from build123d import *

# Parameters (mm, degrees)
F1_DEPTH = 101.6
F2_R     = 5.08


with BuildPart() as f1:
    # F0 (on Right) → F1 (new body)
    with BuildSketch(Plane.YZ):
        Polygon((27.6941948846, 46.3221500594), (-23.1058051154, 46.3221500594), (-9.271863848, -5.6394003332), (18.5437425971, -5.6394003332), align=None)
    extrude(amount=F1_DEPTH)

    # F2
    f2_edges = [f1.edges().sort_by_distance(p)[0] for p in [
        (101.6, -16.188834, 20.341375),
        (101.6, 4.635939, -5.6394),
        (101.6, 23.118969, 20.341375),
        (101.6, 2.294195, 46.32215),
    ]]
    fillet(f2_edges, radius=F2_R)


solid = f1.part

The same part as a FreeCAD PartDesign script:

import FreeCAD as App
import Part
import Sketcher
from FreeCAD import Vector
Q = App.Units.Quantity


def edges_at(feature, points):
    """Names of the edges that pass closest to the given points."""
    edges = feature.Shape.Edges
    near = lambda p: min(range(len(edges)), key=lambda i: edges[i].distToShape(Part.Vertex(*p))[0])
    return sorted({f"Edge{near(p) + 1}" for p in points})

doc = App.newDocument("Part")
params = doc.addObject("Spreadsheet::Sheet", "Params")
for row, (alias, value) in enumerate([
    ("sketch1_width", "2 in"),
    ("pad1_length", "4 in"),
    ("fillet_radius", "0.2 in"),
], start=1):
    params.set(f"A{row}", alias)
    params.set(f"B{row}", "=" + value)
    params.setAlias(f"B{row}", alias)

body = doc.addObject("PartDesign::Body", "Body")

sketch1 = body.newObject("Sketcher::SketchObject", "Sketch")
sketch1.AttachmentSupport = (doc.getObject("YZ_Plane"), [""])
sketch1.MapMode = "FlatFace"
sketch1.addGeometry(Part.LineSegment(Vector(28, 46, 0), Vector(-23, 46, 0)), False)
sketch1.addGeometry(Part.LineSegment(Vector(-23, 46, 0), Vector(-9, -6, 0)), False)
sketch1.addGeometry(Part.LineSegment(Vector(-9, -6, 0), Vector(19, -6, 0)), False)
sketch1.addGeometry(Part.LineSegment(Vector(19, -6, 0), Vector(28, 46, 0)), False)
sketch1.addConstraint(Sketcher.Constraint("Coincident", 0, 2, 1, 1))
sketch1.addConstraint(Sketcher.Constraint("Coincident", 1, 2, 2, 1))
sketch1.addConstraint(Sketcher.Constraint("Coincident", 2, 2, 3, 1))
sketch1.addConstraint(Sketcher.Constraint("Coincident", 3, 2, 0, 1))
sketch1.addConstraint(Sketcher.Constraint("Horizontal", 0))
sketch1.addConstraint(Sketcher.Constraint("Horizontal", 2))
sketch1.addConstraint(Sketcher.Constraint("DistanceX", 0, 2, 0, 1, Q("2 in")))
sketch1.addConstraint(Sketcher.Constraint("Distance", 3, Q("52.761098 mm")))
sketch1.addConstraint(Sketcher.Constraint("DistanceY", 1, 2, -1, 1, Q("5.6394 mm")))
sketch1.addConstraint(Sketcher.Constraint("Distance", 1, Q("53.77156 mm")))
sketch1.addConstraint(Sketcher.Constraint("DistanceX", 2, 1, 2, 2, Q("27.815606 mm")))
sketch1.addConstraint(Sketcher.Constraint("DistanceX", 0, 2, -1, 1, Q("23.105805 mm")))
sketch1.setExpression("Constraints[6]", "Params.sketch1_width")
pad1 = body.newObject("PartDesign::Pad", "Pad")
pad1.Profile = sketch1
pad1.setExpression("Length", "Params.pad1_length")
doc.recompute()

fillet = body.newObject("PartDesign::Fillet", "Fillet")
fillet.Base = (pad1, edges_at(pad1, [
    (101.6, -16.189, 20.341),
    (101.6, 4.636, -5.639),
    (101.6, 23.119, 20.341),
    (101.6, 2.294, 46.322),
]))
fillet.setExpression("Radius", "Params.fillet_radius")

doc.recompute()
